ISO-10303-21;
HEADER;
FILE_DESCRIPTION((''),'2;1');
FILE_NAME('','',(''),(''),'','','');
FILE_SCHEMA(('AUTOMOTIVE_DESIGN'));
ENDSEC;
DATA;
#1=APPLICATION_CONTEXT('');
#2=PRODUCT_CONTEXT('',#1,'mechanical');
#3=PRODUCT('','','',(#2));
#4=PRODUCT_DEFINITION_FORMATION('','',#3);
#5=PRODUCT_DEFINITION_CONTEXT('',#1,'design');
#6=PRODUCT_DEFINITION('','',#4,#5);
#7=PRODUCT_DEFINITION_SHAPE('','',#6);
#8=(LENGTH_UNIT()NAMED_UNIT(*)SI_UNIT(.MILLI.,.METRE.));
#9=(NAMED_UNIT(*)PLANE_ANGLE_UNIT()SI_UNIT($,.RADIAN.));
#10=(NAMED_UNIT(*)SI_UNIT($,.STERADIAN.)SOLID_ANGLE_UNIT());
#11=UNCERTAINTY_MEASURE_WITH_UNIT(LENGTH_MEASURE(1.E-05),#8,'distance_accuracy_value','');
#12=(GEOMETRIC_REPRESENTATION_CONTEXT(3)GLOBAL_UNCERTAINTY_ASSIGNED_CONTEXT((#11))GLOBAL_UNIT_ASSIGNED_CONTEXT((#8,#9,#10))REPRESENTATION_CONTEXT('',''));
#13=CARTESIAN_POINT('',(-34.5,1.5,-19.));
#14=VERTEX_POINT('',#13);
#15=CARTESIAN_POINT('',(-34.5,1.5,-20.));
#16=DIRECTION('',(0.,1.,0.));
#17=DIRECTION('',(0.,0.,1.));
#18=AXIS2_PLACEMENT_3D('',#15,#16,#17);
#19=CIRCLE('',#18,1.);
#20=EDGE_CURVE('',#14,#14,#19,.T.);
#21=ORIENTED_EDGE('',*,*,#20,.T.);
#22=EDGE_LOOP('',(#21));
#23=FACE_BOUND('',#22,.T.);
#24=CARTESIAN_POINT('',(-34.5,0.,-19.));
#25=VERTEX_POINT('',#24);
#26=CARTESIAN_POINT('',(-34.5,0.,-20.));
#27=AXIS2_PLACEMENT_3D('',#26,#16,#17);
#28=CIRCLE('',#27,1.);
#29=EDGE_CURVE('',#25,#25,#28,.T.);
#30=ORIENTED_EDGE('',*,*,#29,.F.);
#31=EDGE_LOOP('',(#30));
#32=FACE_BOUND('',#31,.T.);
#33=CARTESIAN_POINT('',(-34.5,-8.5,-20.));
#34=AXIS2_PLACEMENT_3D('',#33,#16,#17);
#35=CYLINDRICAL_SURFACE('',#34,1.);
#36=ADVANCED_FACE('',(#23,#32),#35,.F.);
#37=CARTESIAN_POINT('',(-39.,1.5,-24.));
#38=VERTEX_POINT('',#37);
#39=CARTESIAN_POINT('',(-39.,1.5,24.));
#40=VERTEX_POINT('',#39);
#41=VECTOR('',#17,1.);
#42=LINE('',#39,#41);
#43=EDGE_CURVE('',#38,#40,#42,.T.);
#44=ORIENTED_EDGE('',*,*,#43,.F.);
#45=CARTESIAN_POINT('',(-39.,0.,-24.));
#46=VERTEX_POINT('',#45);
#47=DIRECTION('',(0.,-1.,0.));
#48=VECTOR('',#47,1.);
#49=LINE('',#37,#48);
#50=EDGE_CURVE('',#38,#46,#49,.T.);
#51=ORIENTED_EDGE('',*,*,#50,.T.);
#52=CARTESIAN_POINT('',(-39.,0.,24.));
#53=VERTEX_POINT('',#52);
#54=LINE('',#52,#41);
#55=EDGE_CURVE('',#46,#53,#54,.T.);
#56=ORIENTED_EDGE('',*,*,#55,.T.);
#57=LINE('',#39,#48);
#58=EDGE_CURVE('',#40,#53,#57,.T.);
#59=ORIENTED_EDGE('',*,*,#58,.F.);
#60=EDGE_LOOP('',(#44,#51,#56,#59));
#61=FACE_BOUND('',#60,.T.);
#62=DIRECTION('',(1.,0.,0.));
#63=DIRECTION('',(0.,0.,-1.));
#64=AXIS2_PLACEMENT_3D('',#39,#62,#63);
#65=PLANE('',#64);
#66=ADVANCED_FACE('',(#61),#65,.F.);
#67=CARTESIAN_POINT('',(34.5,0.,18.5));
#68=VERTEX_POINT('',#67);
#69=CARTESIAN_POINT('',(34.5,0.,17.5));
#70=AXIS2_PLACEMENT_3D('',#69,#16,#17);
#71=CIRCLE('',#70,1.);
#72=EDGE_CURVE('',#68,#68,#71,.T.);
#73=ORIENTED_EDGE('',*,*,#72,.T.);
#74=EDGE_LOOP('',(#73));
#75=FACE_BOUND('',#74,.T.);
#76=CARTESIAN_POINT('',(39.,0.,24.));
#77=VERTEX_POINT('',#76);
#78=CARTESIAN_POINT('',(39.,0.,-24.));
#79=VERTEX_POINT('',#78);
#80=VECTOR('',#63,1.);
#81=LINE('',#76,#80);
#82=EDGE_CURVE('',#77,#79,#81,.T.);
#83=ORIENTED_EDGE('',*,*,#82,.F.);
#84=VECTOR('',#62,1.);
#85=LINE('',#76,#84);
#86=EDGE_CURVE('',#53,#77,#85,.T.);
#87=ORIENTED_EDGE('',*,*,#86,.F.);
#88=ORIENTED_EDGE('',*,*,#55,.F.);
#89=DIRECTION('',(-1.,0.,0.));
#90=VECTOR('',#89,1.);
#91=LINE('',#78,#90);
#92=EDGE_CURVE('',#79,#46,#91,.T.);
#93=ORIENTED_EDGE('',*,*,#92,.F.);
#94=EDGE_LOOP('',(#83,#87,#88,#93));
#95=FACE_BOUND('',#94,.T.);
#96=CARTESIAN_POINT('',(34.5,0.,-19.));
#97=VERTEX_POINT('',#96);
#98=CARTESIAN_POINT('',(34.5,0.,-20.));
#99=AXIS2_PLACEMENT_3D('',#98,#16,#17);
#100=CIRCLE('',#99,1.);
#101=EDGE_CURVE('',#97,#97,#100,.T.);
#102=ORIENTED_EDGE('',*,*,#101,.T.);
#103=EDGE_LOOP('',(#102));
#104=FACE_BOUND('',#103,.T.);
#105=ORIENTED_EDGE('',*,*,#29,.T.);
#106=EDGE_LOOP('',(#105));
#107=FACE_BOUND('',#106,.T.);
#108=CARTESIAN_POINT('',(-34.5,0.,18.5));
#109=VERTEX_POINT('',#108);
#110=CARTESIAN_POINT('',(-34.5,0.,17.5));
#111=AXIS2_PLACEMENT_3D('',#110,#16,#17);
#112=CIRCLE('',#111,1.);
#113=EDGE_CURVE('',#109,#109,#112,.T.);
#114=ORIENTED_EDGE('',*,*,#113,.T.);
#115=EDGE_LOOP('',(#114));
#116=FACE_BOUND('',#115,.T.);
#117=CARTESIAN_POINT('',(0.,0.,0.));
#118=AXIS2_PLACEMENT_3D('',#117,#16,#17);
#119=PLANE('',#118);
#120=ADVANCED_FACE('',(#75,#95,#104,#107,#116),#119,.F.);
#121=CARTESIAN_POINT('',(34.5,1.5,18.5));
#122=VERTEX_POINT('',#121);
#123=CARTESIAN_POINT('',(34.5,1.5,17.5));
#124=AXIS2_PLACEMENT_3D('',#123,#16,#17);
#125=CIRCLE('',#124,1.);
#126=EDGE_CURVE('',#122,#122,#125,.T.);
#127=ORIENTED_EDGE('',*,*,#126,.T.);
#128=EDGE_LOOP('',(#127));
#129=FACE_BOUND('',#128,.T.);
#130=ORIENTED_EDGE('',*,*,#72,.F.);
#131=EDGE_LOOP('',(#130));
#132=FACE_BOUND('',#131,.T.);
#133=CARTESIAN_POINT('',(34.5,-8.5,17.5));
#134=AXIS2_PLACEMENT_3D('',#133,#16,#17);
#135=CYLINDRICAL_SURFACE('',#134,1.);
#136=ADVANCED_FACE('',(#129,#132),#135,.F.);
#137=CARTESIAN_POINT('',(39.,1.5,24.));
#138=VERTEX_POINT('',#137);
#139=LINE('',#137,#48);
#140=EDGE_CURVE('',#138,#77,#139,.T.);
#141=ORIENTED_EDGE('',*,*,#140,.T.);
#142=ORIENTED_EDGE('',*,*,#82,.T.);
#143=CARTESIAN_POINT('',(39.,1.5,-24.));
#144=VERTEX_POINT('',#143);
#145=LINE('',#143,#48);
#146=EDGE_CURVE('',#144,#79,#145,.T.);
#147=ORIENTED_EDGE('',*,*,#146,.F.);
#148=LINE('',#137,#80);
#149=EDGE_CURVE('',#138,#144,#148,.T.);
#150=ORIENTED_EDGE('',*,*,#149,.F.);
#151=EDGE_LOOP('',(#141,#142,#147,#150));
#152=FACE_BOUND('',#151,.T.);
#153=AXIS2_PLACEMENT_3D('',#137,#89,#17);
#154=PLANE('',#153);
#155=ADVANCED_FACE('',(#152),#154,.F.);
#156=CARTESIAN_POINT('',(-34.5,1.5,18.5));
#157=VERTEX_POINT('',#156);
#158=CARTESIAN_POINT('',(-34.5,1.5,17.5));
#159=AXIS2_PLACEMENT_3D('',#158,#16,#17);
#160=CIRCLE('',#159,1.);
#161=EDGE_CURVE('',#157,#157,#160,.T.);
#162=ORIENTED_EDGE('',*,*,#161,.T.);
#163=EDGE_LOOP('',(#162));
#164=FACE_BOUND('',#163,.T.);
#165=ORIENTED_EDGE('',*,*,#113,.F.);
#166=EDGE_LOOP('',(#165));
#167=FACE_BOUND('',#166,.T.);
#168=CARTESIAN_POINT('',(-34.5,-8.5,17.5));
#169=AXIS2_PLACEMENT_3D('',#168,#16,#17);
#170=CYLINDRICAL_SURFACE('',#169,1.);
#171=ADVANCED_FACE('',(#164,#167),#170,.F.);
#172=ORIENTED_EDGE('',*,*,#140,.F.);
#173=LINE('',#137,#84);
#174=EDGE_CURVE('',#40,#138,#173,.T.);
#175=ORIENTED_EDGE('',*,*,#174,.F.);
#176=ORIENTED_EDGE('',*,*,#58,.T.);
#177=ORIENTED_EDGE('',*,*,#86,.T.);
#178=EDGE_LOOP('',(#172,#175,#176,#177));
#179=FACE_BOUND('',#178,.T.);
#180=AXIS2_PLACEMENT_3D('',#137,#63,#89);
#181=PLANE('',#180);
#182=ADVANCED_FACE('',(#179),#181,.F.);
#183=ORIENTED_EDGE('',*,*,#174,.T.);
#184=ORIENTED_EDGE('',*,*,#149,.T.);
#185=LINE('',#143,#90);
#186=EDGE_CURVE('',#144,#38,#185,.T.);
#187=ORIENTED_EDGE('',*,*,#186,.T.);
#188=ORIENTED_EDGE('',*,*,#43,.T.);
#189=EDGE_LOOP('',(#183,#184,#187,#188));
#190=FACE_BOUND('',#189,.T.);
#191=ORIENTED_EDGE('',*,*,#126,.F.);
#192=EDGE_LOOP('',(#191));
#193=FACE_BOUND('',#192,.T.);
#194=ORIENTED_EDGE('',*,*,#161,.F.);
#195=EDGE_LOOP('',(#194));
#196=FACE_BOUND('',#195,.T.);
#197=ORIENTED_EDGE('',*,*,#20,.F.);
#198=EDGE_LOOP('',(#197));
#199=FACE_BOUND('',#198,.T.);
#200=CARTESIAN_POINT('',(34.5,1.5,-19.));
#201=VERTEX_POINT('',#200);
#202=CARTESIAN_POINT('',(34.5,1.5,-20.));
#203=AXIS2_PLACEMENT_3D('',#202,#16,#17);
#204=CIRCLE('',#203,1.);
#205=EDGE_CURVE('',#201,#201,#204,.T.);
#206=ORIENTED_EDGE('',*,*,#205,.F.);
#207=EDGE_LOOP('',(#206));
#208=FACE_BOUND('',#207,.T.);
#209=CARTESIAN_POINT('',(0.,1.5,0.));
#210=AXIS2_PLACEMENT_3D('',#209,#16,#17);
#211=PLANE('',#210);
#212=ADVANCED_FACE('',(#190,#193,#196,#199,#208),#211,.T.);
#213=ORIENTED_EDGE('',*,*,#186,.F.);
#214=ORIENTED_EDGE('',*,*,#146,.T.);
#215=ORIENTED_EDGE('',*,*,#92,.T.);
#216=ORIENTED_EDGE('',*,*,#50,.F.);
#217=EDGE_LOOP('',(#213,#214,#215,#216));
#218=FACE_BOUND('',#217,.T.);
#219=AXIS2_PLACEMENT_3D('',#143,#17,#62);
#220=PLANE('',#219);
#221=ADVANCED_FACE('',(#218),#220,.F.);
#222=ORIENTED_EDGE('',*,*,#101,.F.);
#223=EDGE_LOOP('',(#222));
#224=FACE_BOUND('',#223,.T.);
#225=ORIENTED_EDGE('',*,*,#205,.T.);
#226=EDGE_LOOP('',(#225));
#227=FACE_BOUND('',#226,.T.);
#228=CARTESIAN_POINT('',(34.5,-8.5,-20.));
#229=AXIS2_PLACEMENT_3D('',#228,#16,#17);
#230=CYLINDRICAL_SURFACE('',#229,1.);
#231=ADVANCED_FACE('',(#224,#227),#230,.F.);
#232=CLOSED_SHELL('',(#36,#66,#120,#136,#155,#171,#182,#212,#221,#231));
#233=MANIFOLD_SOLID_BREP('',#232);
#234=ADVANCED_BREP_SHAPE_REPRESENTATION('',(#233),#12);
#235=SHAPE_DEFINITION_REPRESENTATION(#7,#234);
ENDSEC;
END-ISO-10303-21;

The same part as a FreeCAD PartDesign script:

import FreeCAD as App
import Part
import Sketcher
Q = App.Units.Quantity


def add_polygon(sketch, points):
    """Adds a closed chain of lines whose ends are joined by coincident constraints."""
    first, n = sketch.GeometryCount, len(points)
    for a, b in zip(points, points[1:] + points[:1]):
        sketch.addGeometry(Part.LineSegment(App.Vector(*a, 0), App.Vector(*b, 0)), False)
    for i in range(n):
        sketch.addConstraint(Sketcher.Constraint("Coincident", first + i, 2, first + (i + 1) % n, 1))

doc = App.newDocument("Part")
body = doc.addObject("PartDesign::Body", "Body")

sketch1 = body.newObject("Sketcher::SketchObject", "Sketch")
sketch1.AttachmentSupport = (doc.getObject("XZ_Plane"), [""])
sketch1.MapMode = "FlatFace"
add_polygon(sketch1, [(-39, -24), (-39, 24), (39, 24), (39, -24)])
sketch1.addConstraint(Sketcher.Constraint("Vertical", 0))
sketch1.addConstraint(Sketcher.Constraint("Horizontal", 1))
sketch1.addConstraint(Sketcher.Constraint("Vertical", 2))
sketch1.addConstraint(Sketcher.Constraint("Horizontal", 3))
sketch1.addConstraint(Sketcher.Constraint("Symmetric", 0, 2, 2, 2, -1, 1))
sketch1.addConstraint(Sketcher.Constraint("DistanceX", 1, 1, 1, 2, Q("78 mm")))
sketch1.addConstraint(Sketcher.Constraint("DistanceY", 0, 1, 0, 2, Q("48 mm")))
pad1 = body.newObject("PartDesign::Pad", "Pad")
pad1.Profile = sketch1
pad1.Length = 1.5
pad1.Reversed = True

sketch2 = body.newObject("Sketcher::SketchObject", "Sketch001")
sketch2.AttachmentSupport = (doc.getObject("XZ_Plane"), [""])
sketch2.MapMode = "FlatFace"
sketch2.AttachmentOffset = App.Placement(App.Vector(0, 0, -1.5), App.Rotation())
sketch2.addGeometry(Part.Circle(App.Vector(-34.5, -20, 0), App.Vector(0, 0, 1), 1), False)
sketch2.addGeometry(Part.Circle(App.Vector(34.5, -20, 0), App.Vector(0, 0, 1), 1), False)
sketch2.addGeometry(Part.Circle(App.Vector(-34.5, 17.5, 0), App.Vector(0, 0, 1), 1), False)
sketch2.addGeometry(Part.Circle(App.Vector(34.5, 17.5, 0), App.Vector(0, 0, 1), 1), False)
sketch2.addConstraint(Sketcher.Constraint("Equal", 0, 1))
sketch2.addConstraint(Sketcher.Constraint("Equal", 1, 2))
sketch2.addConstraint(Sketcher.Constraint("Equal", 2, 3))
sketch2.addConstraint(Sketcher.Constraint("Symmetric", 0, 3, 1, 3, -2))
sketch2.addConstraint(Sketcher.Constraint("Symmetric", 2, 3, 3, 3, -2))
sketch2.addConstraint(Sketcher.Constraint("Vertical", 0, 3, 2, 3))
sketch2.addConstraint(Sketcher.Constraint("Diameter", 0, Q("2 mm")))
sketch2.addConstraint(Sketcher.Constraint("DistanceY", 0, 3, -1, 1, Q("20 mm")))
sketch2.addConstraint(Sketcher.Constraint("DistanceX", 0, 3, 1, 3, Q("69 mm")))
sketch2.addConstraint(Sketcher.Constraint("DistanceY", -1, 1, 2, 3, Q("17.5 mm")))
pocket1 = body.newObject("PartDesign::Pocket", "Pocket")
pocket1.Profile = sketch2
pocket1.Length = 10
pocket1.Reversed = True

doc.recompute()
